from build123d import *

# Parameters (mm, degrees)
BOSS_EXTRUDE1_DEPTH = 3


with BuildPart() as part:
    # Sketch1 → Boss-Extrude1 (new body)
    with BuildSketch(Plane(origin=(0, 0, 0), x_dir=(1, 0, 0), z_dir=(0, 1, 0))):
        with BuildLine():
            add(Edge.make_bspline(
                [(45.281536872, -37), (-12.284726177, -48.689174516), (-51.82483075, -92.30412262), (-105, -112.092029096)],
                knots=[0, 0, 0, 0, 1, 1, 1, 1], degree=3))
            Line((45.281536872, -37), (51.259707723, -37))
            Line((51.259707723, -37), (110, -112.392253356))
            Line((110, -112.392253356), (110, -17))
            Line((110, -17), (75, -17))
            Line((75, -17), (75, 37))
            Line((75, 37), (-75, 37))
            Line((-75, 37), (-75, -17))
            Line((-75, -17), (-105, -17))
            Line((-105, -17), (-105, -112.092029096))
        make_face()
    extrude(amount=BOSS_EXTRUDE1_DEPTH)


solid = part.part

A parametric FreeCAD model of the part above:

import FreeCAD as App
import Part
import Sketcher
from FreeCAD import Vector

doc = App.newDocument("Part")
body = doc.addObject("PartDesign::Body", "Body")

# Sketch on XZ plane
sketch1 = body.newObject("Sketcher::SketchObject", "Sketch")
sketch1.AttachmentSupport = (doc.getObject("XZ_Plane"), [""])
sketch1.MapMode = "FlatFace"
sketch1.addGeometry(Part.BSplineCurve([Vector(45.281537, 37, 0), Vector(-12.284726, 48.689175, 0), Vector(-51.824831, 92.304123, 0), Vector(-105, 112.092029, 0)], [4, 4], [0, 1], False, 3, [1, 1, 1, 1], False), False)
sketch1.addGeometry(Part.LineSegment(Vector(45.281537, 37, 0), Vector(51.259708, 37, 0)), False)
sketch1.addGeometry(Part.LineSegment(Vector(51.259708, 37, 0), Vector(110, 112.392253, 0)), False)
sketch1.addGeometry(Part.LineSegment(Vector(110, 112.392253, 0), Vector(110, 17, 0)), False)
sketch1.addGeometry(Part.LineSegment(Vector(110, 17, 0), Vector(75, 17, 0)), False)
sketch1.addGeometry(Part.LineSegment(Vector(75, 17, 0), Vector(75, -37, 0)), False)
sketch1.addGeometry(Part.LineSegment(Vector(75, -37, 0), Vector(-75, -37, 0)), False)
sketch1.addGeometry(Part.LineSegment(Vector(-75, -37, 0), Vector(-75, 17, 0)), False)
sketch1.addGeometry(Part.LineSegment(Vector(-75, 17, 0), Vector(-105, 17, 0)), False)
sketch1.addGeometry(Part.LineSegment(Vector(-105, 17, 0), Vector(-105, 112.092029, 0)), False)
sketch1.addConstraint(Sketcher.Constraint("Block", 0))
sketch1.addConstraint(Sketcher.Constraint("Coincident", 0, 1, 1, 1))
sketch1.addConstraint(Sketcher.Constraint("Coincident", 1, 2, 2, 1))
sketch1.addConstraint(Sketcher.Constraint("Coincident", 2, 2, 3, 1))
sketch1.addConstraint(Sketcher.Constraint("Coincident", 3, 2, 4, 1))
sketch1.addConstraint(Sketcher.Constraint("Coincident", 4, 2, 5, 1))
sketch1.addConstraint(Sketcher.Constraint("Coincident", 5, 2, 6, 1))
sketch1.addConstraint(Sketcher.Constraint("Coincident", 6, 2, 7, 1))
sketch1.addConstraint(Sketcher.Constraint("Coincident", 7, 2, 8, 1))
sketch1.addConstraint(Sketcher.Constraint("Coincident", 8, 2, 9, 1))
sketch1.addConstraint(Sketcher.Constraint("Coincident", 9, 2, 0, 2))
sketch1.addConstraint(Sketcher.Constraint("Horizontal", 1))
sketch1.addConstraint(Sketcher.Constraint("Vertical", 3))
sketch1.addConstraint(Sketcher.Constraint("Horizontal", 4))
sketch1.addConstraint(Sketcher.Constraint("Vertical", 5))
sketch1.addConstraint(Sketcher.Constraint("Horizontal", 6))
sketch1.addConstraint(Sketcher.Constraint("Vertical", 7))
sketch1.addConstraint(Sketcher.Constraint("Horizontal", 8))
sketch1.addConstraint(Sketcher.Constraint("Vertical", 9))
sketch1.addConstraint(Sketcher.Constraint("Symmetric", 4, 2, 7, 2, -2))
sketch1.addConstraint(Sketcher.Constraint("DistanceX", 4, 2, 4, 1, 35.0))
sketch1.addConstraint(Sketcher.Constraint("DistanceX", 6, 2, 6, 1, 150.0))
sketch1.addConstraint(Sketcher.Constraint("DistanceY", 5, 2, 5, 1, 54.0))
sketch1.addConstraint(Sketcher.Constraint("DistanceY", -1, 1, 3, 2, 17.0))
sketch1.addConstraint(Sketcher.Constraint("DistanceX", 1, 1, 1, 2, 5.978171))
sketch1.addConstraint(Sketcher.Constraint("DistanceY", 3, 2, 3, 1, 95.392253))
pad1 = body.newObject("PartDesign::Pad", "Pad")
pad1.Profile = sketch1
pad1.Length = 3
pad1.Reversed = True

doc.recompute()
